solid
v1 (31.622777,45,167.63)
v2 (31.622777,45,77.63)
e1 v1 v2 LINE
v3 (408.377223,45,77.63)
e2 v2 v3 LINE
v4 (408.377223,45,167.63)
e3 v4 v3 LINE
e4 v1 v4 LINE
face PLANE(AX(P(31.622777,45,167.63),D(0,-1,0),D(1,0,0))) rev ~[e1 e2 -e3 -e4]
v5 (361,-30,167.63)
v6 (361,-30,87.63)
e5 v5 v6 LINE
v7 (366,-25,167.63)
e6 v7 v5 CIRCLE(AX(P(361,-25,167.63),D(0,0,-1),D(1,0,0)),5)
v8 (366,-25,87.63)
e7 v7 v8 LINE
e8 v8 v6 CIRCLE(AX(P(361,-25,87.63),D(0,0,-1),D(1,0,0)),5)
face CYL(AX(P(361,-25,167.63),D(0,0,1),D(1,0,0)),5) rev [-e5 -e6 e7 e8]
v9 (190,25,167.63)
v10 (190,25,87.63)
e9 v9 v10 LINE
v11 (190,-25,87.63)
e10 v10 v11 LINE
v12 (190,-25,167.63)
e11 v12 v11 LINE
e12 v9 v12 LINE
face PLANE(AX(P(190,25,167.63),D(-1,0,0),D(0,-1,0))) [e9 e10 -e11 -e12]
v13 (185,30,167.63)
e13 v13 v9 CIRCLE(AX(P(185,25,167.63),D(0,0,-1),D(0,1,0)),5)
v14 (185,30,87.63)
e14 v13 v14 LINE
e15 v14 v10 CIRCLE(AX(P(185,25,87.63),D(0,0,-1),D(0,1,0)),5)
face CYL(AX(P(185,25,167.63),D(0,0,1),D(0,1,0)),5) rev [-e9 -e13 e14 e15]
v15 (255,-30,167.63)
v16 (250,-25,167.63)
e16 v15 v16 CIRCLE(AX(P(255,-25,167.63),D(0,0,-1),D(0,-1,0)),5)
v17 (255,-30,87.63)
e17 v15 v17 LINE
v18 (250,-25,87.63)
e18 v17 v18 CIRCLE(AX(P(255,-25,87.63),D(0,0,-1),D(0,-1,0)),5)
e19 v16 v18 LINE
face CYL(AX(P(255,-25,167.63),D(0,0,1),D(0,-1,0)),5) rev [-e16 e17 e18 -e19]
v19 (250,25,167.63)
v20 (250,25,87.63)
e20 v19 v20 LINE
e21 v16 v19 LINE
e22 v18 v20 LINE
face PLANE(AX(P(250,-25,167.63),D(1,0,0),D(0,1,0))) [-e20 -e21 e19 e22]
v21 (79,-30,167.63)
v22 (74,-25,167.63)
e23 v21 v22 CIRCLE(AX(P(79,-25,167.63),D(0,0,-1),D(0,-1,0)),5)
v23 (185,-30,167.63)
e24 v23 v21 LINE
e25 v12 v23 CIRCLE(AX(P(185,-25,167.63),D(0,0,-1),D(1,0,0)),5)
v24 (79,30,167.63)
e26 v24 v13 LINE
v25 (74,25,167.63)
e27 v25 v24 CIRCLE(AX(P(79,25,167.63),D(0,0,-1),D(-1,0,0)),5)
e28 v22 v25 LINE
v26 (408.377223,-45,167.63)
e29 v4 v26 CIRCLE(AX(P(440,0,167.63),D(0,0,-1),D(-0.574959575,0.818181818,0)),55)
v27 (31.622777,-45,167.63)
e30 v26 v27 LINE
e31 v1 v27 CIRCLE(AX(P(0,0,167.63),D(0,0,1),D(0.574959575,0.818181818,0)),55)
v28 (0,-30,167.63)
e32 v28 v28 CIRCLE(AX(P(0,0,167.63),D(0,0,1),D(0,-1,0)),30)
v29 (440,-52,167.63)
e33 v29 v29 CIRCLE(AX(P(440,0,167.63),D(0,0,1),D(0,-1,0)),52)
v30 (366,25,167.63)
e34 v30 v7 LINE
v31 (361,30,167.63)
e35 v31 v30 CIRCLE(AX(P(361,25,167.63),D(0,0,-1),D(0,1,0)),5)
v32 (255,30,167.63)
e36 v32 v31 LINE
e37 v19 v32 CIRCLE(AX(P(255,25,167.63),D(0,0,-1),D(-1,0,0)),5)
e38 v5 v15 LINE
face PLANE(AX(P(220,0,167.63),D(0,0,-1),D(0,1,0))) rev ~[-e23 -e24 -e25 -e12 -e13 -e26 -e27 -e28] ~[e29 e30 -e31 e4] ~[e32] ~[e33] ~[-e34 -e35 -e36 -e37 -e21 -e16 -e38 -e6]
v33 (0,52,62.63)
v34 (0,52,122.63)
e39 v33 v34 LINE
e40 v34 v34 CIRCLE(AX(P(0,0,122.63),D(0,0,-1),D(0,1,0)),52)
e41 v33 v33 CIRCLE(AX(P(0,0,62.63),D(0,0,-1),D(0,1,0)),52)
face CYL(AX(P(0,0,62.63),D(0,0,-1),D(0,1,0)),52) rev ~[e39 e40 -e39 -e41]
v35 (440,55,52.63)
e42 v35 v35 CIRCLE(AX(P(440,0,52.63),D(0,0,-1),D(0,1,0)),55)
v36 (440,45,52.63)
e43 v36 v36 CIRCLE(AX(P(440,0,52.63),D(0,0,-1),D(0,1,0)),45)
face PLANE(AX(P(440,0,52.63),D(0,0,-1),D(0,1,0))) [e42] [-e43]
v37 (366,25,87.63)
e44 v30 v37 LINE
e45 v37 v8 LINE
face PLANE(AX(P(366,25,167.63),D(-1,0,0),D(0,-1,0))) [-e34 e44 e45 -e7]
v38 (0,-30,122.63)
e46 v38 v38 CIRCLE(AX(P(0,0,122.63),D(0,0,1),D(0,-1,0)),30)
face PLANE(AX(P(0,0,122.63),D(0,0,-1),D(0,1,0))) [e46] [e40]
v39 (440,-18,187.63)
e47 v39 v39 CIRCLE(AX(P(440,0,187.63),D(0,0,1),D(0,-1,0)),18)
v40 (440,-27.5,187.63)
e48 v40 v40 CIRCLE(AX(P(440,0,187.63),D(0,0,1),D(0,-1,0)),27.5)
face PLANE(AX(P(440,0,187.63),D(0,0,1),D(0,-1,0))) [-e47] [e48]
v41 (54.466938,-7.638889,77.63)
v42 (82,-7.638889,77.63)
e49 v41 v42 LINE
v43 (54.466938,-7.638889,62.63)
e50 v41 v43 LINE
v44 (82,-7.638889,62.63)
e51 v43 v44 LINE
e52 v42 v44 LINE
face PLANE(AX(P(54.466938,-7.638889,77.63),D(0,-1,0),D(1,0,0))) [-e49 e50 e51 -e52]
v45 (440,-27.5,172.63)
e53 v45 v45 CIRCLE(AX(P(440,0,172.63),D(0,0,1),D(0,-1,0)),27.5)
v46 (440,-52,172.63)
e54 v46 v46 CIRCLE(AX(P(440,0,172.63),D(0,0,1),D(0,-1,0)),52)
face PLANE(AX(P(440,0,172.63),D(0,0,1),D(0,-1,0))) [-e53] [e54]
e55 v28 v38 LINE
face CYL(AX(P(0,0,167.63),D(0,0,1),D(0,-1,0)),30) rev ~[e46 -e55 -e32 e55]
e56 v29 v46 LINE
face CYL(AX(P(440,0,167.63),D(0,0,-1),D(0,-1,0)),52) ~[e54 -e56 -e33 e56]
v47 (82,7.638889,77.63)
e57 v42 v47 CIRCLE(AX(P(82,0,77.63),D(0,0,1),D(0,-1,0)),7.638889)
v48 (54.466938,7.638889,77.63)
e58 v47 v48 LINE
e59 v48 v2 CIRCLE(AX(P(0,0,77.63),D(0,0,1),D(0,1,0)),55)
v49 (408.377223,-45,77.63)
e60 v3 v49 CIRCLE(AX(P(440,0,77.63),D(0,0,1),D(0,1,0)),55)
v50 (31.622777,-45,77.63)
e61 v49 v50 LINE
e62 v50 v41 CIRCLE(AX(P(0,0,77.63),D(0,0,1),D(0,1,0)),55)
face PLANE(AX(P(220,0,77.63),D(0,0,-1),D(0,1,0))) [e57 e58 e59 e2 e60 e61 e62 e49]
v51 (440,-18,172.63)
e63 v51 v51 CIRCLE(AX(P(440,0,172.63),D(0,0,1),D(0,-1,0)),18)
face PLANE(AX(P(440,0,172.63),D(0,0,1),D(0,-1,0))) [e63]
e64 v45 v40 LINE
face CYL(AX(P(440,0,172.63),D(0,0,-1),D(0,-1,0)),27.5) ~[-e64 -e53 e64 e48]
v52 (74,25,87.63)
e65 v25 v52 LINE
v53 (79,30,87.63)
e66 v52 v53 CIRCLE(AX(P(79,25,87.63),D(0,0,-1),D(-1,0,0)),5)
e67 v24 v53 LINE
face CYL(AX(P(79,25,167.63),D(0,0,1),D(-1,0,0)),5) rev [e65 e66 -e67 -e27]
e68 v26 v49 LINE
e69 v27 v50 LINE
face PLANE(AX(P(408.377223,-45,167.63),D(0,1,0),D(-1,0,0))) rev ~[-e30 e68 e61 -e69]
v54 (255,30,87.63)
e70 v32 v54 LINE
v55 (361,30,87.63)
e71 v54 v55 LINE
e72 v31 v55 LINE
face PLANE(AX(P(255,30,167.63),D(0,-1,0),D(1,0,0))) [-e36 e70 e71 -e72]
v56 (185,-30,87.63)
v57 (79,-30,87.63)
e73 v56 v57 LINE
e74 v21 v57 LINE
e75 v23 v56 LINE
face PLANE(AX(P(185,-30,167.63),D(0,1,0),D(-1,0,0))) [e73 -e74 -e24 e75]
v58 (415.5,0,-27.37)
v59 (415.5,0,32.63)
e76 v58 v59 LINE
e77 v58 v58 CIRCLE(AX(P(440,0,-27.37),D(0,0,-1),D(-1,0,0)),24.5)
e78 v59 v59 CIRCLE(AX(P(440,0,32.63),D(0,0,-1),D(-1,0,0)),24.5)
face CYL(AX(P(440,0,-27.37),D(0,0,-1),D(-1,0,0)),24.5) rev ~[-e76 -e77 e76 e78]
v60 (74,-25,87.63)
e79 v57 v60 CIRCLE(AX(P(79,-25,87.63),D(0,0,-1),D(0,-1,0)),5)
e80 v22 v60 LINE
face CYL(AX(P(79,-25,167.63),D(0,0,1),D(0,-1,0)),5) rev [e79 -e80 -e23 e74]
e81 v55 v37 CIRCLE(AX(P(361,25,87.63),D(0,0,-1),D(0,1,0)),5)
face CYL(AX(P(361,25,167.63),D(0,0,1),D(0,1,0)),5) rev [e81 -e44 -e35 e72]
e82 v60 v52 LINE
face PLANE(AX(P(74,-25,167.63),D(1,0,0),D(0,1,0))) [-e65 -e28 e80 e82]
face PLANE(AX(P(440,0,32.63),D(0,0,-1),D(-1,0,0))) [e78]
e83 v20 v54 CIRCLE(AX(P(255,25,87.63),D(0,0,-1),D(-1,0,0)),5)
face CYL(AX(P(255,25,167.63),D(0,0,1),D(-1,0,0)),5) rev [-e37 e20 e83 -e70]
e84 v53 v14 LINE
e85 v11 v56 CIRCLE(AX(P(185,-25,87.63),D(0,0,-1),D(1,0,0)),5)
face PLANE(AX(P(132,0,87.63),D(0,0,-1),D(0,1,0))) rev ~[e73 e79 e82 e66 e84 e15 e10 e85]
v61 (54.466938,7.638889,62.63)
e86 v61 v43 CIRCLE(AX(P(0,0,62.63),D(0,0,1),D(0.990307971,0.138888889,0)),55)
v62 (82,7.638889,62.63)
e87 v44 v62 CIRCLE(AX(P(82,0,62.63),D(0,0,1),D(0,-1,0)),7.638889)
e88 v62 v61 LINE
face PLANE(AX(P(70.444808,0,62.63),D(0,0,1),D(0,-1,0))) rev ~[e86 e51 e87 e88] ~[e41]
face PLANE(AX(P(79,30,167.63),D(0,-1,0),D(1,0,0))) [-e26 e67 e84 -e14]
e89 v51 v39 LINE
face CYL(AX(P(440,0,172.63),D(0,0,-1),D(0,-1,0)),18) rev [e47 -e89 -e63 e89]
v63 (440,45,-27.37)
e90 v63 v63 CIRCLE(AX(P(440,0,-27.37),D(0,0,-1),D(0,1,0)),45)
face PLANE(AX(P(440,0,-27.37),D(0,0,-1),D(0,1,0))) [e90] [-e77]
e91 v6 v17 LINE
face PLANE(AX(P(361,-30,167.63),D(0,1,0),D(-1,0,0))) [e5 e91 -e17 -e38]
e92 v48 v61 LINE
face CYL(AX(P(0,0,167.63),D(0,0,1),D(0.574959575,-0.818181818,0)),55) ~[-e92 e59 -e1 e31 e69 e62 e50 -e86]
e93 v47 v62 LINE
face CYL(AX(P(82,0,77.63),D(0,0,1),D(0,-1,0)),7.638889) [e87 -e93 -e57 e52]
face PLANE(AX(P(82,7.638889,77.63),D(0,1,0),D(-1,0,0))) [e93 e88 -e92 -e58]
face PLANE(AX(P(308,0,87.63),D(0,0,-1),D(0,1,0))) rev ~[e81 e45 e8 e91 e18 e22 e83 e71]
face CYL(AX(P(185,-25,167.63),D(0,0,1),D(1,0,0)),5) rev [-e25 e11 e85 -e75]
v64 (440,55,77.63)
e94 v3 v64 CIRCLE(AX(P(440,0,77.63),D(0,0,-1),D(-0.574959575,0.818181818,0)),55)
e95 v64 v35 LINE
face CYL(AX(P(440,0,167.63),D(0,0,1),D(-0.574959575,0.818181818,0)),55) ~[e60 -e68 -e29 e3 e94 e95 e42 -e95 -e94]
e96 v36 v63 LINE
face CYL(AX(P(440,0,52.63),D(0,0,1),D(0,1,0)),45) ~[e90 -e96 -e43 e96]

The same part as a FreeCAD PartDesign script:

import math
import FreeCAD as App
import Part
import Sketcher
from FreeCAD import Vector
Q = App.Units.Quantity

doc = App.newDocument("Part")
body = doc.addObject("PartDesign::Body", "Body")

sketch1 = body.newObject("Sketcher::SketchObject", "Sketch")
sketch1.AttachmentSupport = (doc.getObject("XY_Plane"), [""])
sketch1.MapMode = "FlatFace"
sketch1.addGeometry(Part.LineSegment(Vector(-45, 408, 0), Vector(-45, 32, 0)), False)
sketch1.addGeometry(Part.ArcOfCircle(Part.Circle(Vector(0, 0, 0), Vector(0, 0, 1), 55), math.radians(145), math.radians(395)), False)
sketch1.addGeometry(Part.LineSegment(Vector(45, 32, 0), Vector(45, 408, 0)), False)
sketch1.addGeometry(Part.ArcOfCircle(Part.Circle(Vector(0, 440, 0), Vector(0, 0, 1), 55), math.radians(-35), math.radians(215)), False)
sketch1.addConstraint(Sketcher.Constraint("Coincident", 0, 2, 1, 1))
sketch1.addConstraint(Sketcher.Constraint("Coincident", 1, 2, 2, 1))
sketch1.addConstraint(Sketcher.Constraint("Coincident", 2, 2, 3, 1))
sketch1.addConstraint(Sketcher.Constraint("Coincident", 3, 2, 0, 1))
sketch1.addConstraint(Sketcher.Constraint("Vertical", 0))
sketch1.addConstraint(Sketcher.Constraint("Vertical", 2))
sketch1.addConstraint(Sketcher.Constraint("Coincident", 1, 3, -1, 1))
sketch1.addConstraint(Sketcher.Constraint("Equal", 1, 3))
sketch1.addConstraint(Sketcher.Constraint("Symmetric", 2, 2, 3, 2, -2))
sketch1.addConstraint(Sketcher.Constraint("Radius", 1, Q("55 mm")))
sketch1.addConstraint(Sketcher.Constraint("DistanceY", -1, 1, 3, 3, Q("440 mm")))
sketch1.addConstraint(Sketcher.Constraint("DistanceX", 0, 2, -1, 1, Q("45 mm")))
pad1 = body.newObject("PartDesign::Pad", "Pad")
pad1.Profile = sketch1
pad1.Length = 90

sketch2 = body.newObject("Sketcher::SketchObject", "Sketch001")
sketch2.AttachmentSupport = (doc.getObject("XY_Plane"), [""])
sketch2.MapMode = "FlatFace"
sketch2.addGeometry(Part.Circle(Vector(0, 440, 0), Vector(0, 0, 1), 55), False)
sketch2.addConstraint(Sketcher.Constraint("PointOnObject", 0, 3, -2))
sketch2.addConstraint(Sketcher.Constraint("Diameter", 0, Q("110 mm")))
sketch2.addConstraint(Sketcher.Constraint("DistanceY", -1, 1, 0, 3, Q("440 mm")))
pad2 = body.newObject("PartDesign::Pad", "Pad001")
pad2.Profile = sketch2
pad2.Length = 115

sketch3 = body.newObject("Sketcher::SketchObject", "Sketch002")
sketch3.AttachmentSupport = (doc.getObject("XY_Plane"), [""])
sketch3.MapMode = "FlatFace"
sketch3.addGeometry(Part.Circle(Vector(0, 0, 0), Vector(0, 0, 1), 55), False)
sketch3.addConstraint(Sketcher.Constraint("Coincident", 0, 3, -1, 1))
sketch3.addConstraint(Sketcher.Constraint("Diameter", 0, Q("110 mm")))
pad3 = body.newObject("PartDesign::Pad", "Pad002")
pad3.Profile = sketch3
pad3.Length = 105

sketch4 = body.newObject("Sketcher::SketchObject", "Sketch003")
sketch4.AttachmentSupport = (doc.getObject("XY_Plane"), [""])
sketch4.MapMode = "FlatFace"
sketch4.AttachmentOffset = App.Placement(Vector(0, 0, 90), App.Rotation())
sketch4.addGeometry(Part.LineSegment(Vector(8, 54, 0), Vector(8, 82, 0)), False)
sketch4.addGeometry(Part.ArcOfCircle(Part.Circle(Vector(0, 82, 0), Vector(0, 0, 1), 8), math.radians(0), math.radians(180)), False)
sketch4.addGeometry(Part.LineSegment(Vector(-8, 82, 0), Vector(-8, 54, 0)), False)
sketch4.addGeometry(Part.LineSegment(Vector(-8, 54, 0), Vector(8, 54, 0)), False)
sketch4.addConstraint(Sketcher.Constraint("Tangent", 0, 2, 1, 1))
sketch4.addConstraint(Sketcher.Constraint("Tangent", 1, 2, 2, 1))
sketch4.addConstraint(Sketcher.Constraint("Coincident", 2, 2, 3, 1))
sketch4.addConstraint(Sketcher.Constraint("Coincident", 3, 2, 0, 1))
sketch4.addConstraint(Sketcher.Constraint("Vertical", 0))
sketch4.addConstraint(Sketcher.Constraint("Vertical", 2))
sketch4.addConstraint(Sketcher.Constraint("Horizontal", 3))
sketch4.addConstraint(Sketcher.Constraint("PointOnObject", 1, 3, -2))
sketch4.addConstraint(Sketcher.Constraint("DistanceY", -1, 1, 1, 3, Q("82 mm")))
sketch4.addConstraint(Sketcher.Constraint("Radius", 1, Q("7.638889 mm")))
sketch4.addConstraint(Sketcher.Constraint("DistanceY", 0, 1, 0, 2, Q("27.533062 mm")))
pad4 = body.newObject("PartDesign::Pad", "Pad003")
pad4.Profile = sketch4
pad4.Length = 15

sketch5 = body.newObject("Sketcher::SketchObject", "Sketch004")
sketch5.AttachmentSupport = (doc.getObject("XY_Plane"), [""])
sketch5.MapMode = "FlatFace"
sketch5.AttachmentOffset = App.Placement(Vector(0, 0, 115), App.Rotation())
sketch5.addGeometry(Part.Circle(Vector(0, 440, 0), Vector(0, 0, 1), 45), False)
sketch5.addConstraint(Sketcher.Constraint("PointOnObject", 0, 3, -2))
sketch5.addConstraint(Sketcher.Constraint("Diameter", 0, Q("90 mm")))
sketch5.addConstraint(Sketcher.Constraint("DistanceY", -1, 1, 0, 3, Q("440 mm")))
pad5 = body.newObject("PartDesign::Pad", "Pad004")
pad5.Profile = sketch5
pad5.Length = 80

sketch6 = body.newObject("Sketcher::SketchObject", "Sketch005")
sketch6.AttachmentSupport = (doc.getObject("XY_Plane"), [""])
sketch6.MapMode = "FlatFace"
sketch6.addGeometry(Part.Circle(Vector(0, 440, 0), Vector(0, 0, 1), 52), False)
sketch6.addConstraint(Sketcher.Constraint("PointOnObject", 0, 3, -2))
sketch6.addConstraint(Sketcher.Constraint("Diameter", 0, Q("104 mm")))
sketch6.addConstraint(Sketcher.Constraint("DistanceY", -1, 1, 0, 3, Q("440 mm")))
pad6 = body.newObject("PartDesign::Pad", "Pad005")
pad6.Profile = sketch6
pad6.Length = 5
pad6.Reversed = True

sketch7 = body.newObject("Sketcher::SketchObject", "Sketch006")
sketch7.AttachmentSupport = (doc.getObject("XY_Plane"), [""])
sketch7.MapMode = "FlatFace"
sketch7.AttachmentOffset = App.Placement(Vector(0, 0, -5), App.Rotation())
sketch7.addGeometry(Part.Circle(Vector(0, 440, 0), Vector(0, 0, 1), 28), False)
sketch7.addGeometry(Part.Circle(Vector(0, 440, 0), Vector(0, 0, 1), 18), False)
sketch7.addConstraint(Sketcher.Constraint("Coincident", 1, 3, 0, 3))
sketch7.addConstraint(Sketcher.Constraint("PointOnObject", 0, 3, -2))
sketch7.addConstraint(Sketcher.Constraint("Diameter", 0, Q("55 mm")))
sketch7.addConstraint(Sketcher.Constraint("Diameter", 1, Q("36 mm")))
sketch7.addConstraint(Sketcher.Constraint("DistanceY", -1, 1, 0, 3, Q("440 mm")))
pad7 = body.newObject("PartDesign::Pad", "Pad006")
pad7.Profile = sketch7
pad7.Length = 15
pad7.Reversed = True
body2 = doc.addObject("PartDesign::Body", "Body001")
doc.recompute()

body.Placement = App.Placement(Vector(0, 0, 0), App.Rotation(Vector(0, 1, 0), 180))
boolean = body2.newObject("PartDesign::Boolean", "Boolean")
boolean.Type = "Fuse"
boolean.addObjects([body])

sketch8 = body2.newObject("Sketcher::SketchObject", "Sketch007")
sketch8.AttachmentSupport = (doc.getObject("XY_Plane001"), [""])
sketch8.MapMode = "FlatFace"
sketch8.AttachmentOffset = App.Placement(Vector(0, 0, -105), App.Rotation())
sketch8.addGeometry(Part.Circle(Vector(0, 0, 0), Vector(0, 0, 1), 52), False)
sketch8.addConstraint(Sketcher.Constraint("Coincident", 0, 3, -1, 1))
sketch8.addConstraint(Sketcher.Constraint("Diameter", 0, Q("104 mm")))
pocket1 = body2.newObject("PartDesign::Pocket", "Pocket")
pocket1.Profile = sketch8
pocket1.Length = 60
pocket1.Reversed = True

sketch9 = body2.newObject("Sketcher::SketchObject", "Sketch008")
sketch9.AttachmentSupport = (doc.getObject("XY_Plane001"), [""])
sketch9.MapMode = "FlatFace"
sketch9.addGeometry(Part.ArcOfCircle(Part.Circle(Vector(-25, 361, 0), Vector(0, 0, 1), 5), math.radians(90), math.radians(180)), False)
sketch9.addGeometry(Part.LineSegment(Vector(-30, 361, 0), Vector(-30, 255, 0)), False)
sketch9.addGeometry(Part.ArcOfCircle(Part.Circle(Vector(-25, 255, 0), Vector(0, 0, 1), 5), math.radians(180), math.radians(270)), False)
sketch9.addGeometry(Part.LineSegment(Vector(-25, 250, 0), Vector(25, 250, 0)), False)
sketch9.addGeometry(Part.ArcOfCircle(Part.Circle(Vector(25, 255, 0), Vector(0, 0, 1), 5), math.radians(-90), math.radians(0)), False)
sketch9.addGeometry(Part.LineSegment(Vector(30, 255, 0), Vector(30, 361, 0)), False)
sketch9.addGeometry(Part.ArcOfCircle(Part.Circle(Vector(25, 361, 0), Vector(0, 0, 1), 5), math.radians(0), math.radians(90)), False)
sketch9.addGeometry(Part.LineSegment(Vector(25, 366, 0), Vector(-25, 366, 0)), False)
sketch9.addGeometry(Part.ArcOfCircle(Part.Circle(Vector(-25, 185, 0), Vector(0, 0, 1), 5), math.radians(90), math.radians(180)), False)
sketch9.addGeometry(Part.LineSegment(Vector(-30, 185, 0), Vector(-30, 79, 0)), False)
sketch9.addGeometry(Part.ArcOfCircle(Part.Circle(Vector(-25, 79, 0), Vector(0, 0, 1), 5), math.radians(180), math.radians(270)), False)
sketch9.addGeometry(Part.LineSegment(Vector(-25, 74, 0), Vector(25, 74, 0)), False)
sketch9.addGeometry(Part.ArcOfCircle(Part.Circle(Vector(25, 79, 0), Vector(0, 0, 1), 5), math.radians(-90), math.radians(0)), False)
sketch9.addGeometry(Part.LineSegment(Vector(30, 79, 0), Vector(30, 185, 0)), False)
sketch9.addGeometry(Part.ArcOfCircle(Part.Circle(Vector(25, 185, 0), Vector(0, 0, 1), 5), math.radians(0), math.radians(90)), False)
sketch9.addGeometry(Part.LineSegment(Vector(25, 190, 0), Vector(-25, 190, 0)), False)
sketch9.addConstraint(Sketcher.Constraint("Tangent", 0, 2, 1, 1))
sketch9.addConstraint(Sketcher.Constraint("Tangent", 1, 2, 2, 1))
sketch9.addConstraint(Sketcher.Constraint("Tangent", 2, 2, 3, 1))
sketch9.addConstraint(Sketcher.Constraint("Tangent", 3, 2, 4, 1))
sketch9.addConstraint(Sketcher.Constraint("Tangent", 4, 2, 5, 1))
sketch9.addConstraint(Sketcher.Constraint("Tangent", 5, 2, 6, 1))
sketch9.addConstraint(Sketcher.Constraint("Tangent", 6, 2, 7, 1))
sketch9.addConstraint(Sketcher.Constraint("Tangent", 7, 2, 0, 1))
sketch9.addConstraint(Sketcher.Constraint("Tangent", 8, 2, 9, 1))
sketch9.addConstraint(Sketcher.Constraint("Tangent", 9, 2, 10, 1))
sketch9.addConstraint(Sketcher.Constraint("Tangent", 10, 2, 11, 1))
sketch9.addConstraint(Sketcher.Constraint("Tangent", 11, 2, 12, 1))
sketch9.addConstraint(Sketcher.Constraint("Tangent", 12, 2, 13, 1))
sketch9.addConstraint(Sketcher.Constraint("Tangent", 13, 2, 14, 1))
sketch9.addConstraint(Sketcher.Constraint("Tangent", 14, 2, 15, 1))
sketch9.addConstraint(Sketcher.Constraint("Tangent", 15, 2, 8, 1))
sketch9.addConstraint(Sketcher.Constraint("Vertical", 1))
sketch9.addConstraint(Sketcher.Constraint("Horizontal", 3))
sketch9.addConstraint(Sketcher.Constraint("Vertical", 5))
sketch9.addConstraint(Sketcher.Constraint("Horizontal", 7))
sketch9.addConstraint(Sketcher.Constraint("Vertical", 9))
sketch9.addConstraint(Sketcher.Constraint("Horizontal", 11))
sketch9.addConstraint(Sketcher.Constraint("Vertical", 13))
sketch9.addConstraint(Sketcher.Constraint("Horizontal", 15))
sketch9.addConstraint(Sketcher.Constraint("Equal", 0, 2))
sketch9.addConstraint(Sketcher.Constraint("Equal", 2, 4))
sketch9.addConstraint(Sketcher.Constraint("Equal", 4, 6))
sketch9.addConstraint(Sketcher.Constraint("Equal", 6, 8))
sketch9.addConstraint(Sketcher.Constraint("Equal", 8, 10))
sketch9.addConstraint(Sketcher.Constraint("Equal", 10, 12))
sketch9.addConstraint(Sketcher.Constraint("Equal", 12, 14))
sketch9.addConstraint(Sketcher.Constraint("Vertical", 2, 3, 8, 3))
sketch9.addConstraint(Sketcher.Constraint("Vertical", 6, 3, 12, 3))
sketch9.addConstraint(Sketcher.Constraint("Equal", 5, 9))
sketch9.addConstraint(Sketcher.Constraint("Radius", 0, Q("5 mm")))
sketch9.addConstraint(Sketcher.Constraint("DistanceX", 3, 1, 3, 2, Q("50 mm")))
sketch9.addConstraint(Sketcher.Constraint("DistanceY", 1, 2, 1, 1, Q("106 mm")))
sketch9.addConstraint(Sketcher.Constraint("DistanceX", 0, 3, -1, 1, Q("25 mm")))
sketch9.addConstraint(Sketcher.Constraint("DistanceY", -1, 1, 0, 3, Q("361 mm")))
sketch9.addConstraint(Sketcher.Constraint("DistanceY", -1, 1, 8, 3, Q("185 mm")))
pocket2 = body2.newObject("PartDesign::Pocket", "Pocket001")
pocket2.Profile = sketch9
pocket2.Length = 80

sketch10 = body2.newObject("Sketcher::SketchObject", "Sketch009")
sketch10.AttachmentSupport = (doc.getObject("XY_Plane001"), [""])
sketch10.MapMode = "FlatFace"
sketch10.addGeometry(Part.Circle(Vector(0, 0, 0), Vector(0, 0, 1), 30), False)
sketch10.addConstraint(Sketcher.Constraint("Coincident", 0, 3, -1, 1))
sketch10.addConstraint(Sketcher.Constraint("Diameter", 0, Q("60 mm")))
pocket3 = body2.newObject("PartDesign::Pocket", "Pocket002")
pocket3.Profile = sketch10
pocket3.Type = "ThroughAll"
body3 = doc.addObject("PartDesign::Body", "Body002")
doc.recompute()

body2.Placement = App.Placement(Vector(0, 0, -175), App.Rotation(Vector(0, 1, 0), 180))
boolean2 = body3.newObject("PartDesign::Boolean", "Boolean001")
boolean2.Type = "Fuse"
boolean2.addObjects([body2])
body4 = doc.addObject("PartDesign::Body", "Body003")
doc.recompute()

body3.Placement = App.Placement(Vector(-225, 225, 0), App.Rotation(Vector(0, 0, -1), 90))
boolean3 = body4.newObject("PartDesign::Boolean", "Boolean002")
boolean3.Type = "Fuse"
boolean3.addObjects([body3])
body5 = doc.addObject("PartDesign::Body", "Body004")
doc.recompute()

body4.Placement = App.Placement(Vector(450, 0, -35), App.Rotation(Vector(0, 1, 0), 180))
boolean4 = body5.newObject("PartDesign::Boolean", "Boolean003")
boolean4.Type = "Fuse"
boolean4.addObjects([body4])
body6 = doc.addObject("PartDesign::Body", "Body005")
doc.recompute()

body5.Placement = App.Placement(Vector(-675, -225, -35), App.Rotation(Vector(0, 0, 1), 0))
boolean5 = body6.newObject("PartDesign::Boolean", "Boolean004")
boolean5.Type = "Fuse"
boolean5.addObjects([body5])
body7 = doc.addObject("PartDesign::Body", "Body006")
doc.recompute()

body6.Placement = App.Placement(Vector(-225, -225, 0), App.Rotation(Vector(0, 0, -1), 90))
boolean6 = body7.newObject("PartDesign::Boolean", "Boolean005")
boolean6.Type = "Fuse"
boolean6.addObjects([body6])
body8 = doc.addObject("PartDesign::Body", "Body007")
doc.recompute()

body7.Placement = App.Placement(Vector(-225, -225, 0), App.Rotation(Vector(0, 0, -1), 90))
boolean7 = body8.newObject("PartDesign::Boolean", "Boolean006")
boolean7.Type = "Fuse"
boolean7.addObjects([body7])
body9 = doc.addObject("PartDesign::Body", "Body008")
doc.recompute()

body8.Placement = App.Placement(Vector(450, 0, 0), App.Rotation(Vector(0, 0, 1), 0))
boolean8 = body9.newObject("PartDesign::Boolean", "Boolean007")
boolean8.Type = "Fuse"
boolean8.addObjects([body8])
body10 = doc.addObject("PartDesign::Body", "Body009")
doc.recompute()

body9.Placement = App.Placement(Vector(0, 0, 62.63), App.Rotation(Vector(0, 0, 1), 0))
boolean9 = body10.newObject("PartDesign::Boolean", "Boolean008")
boolean9.Type = "Fuse"
boolean9.addObjects([body9])

sketch11 = body10.newObject("Sketcher::SketchObject", "Sketch010")
sketch11.AttachmentSupport = (doc.getObject("XY_Plane009"), [""])
sketch11.MapMode = "FlatFace"
sketch11.AttachmentOffset = App.Placement(Vector(0, 0, -27.37), App.Rotation())
sketch11.addGeometry(Part.Circle(Vector(440, 0, 0), Vector(0, 0, 1), 24), False)
sketch11.addConstraint(Sketcher.Constraint("PointOnObject", 0, 3, -1))
sketch11.addConstraint(Sketcher.Constraint("Diameter", 0, Q("49 mm")))
sketch11.addConstraint(Sketcher.Constraint("DistanceX", -1, 1, 0, 3, Q("440 mm")))
pocket4 = body10.newObject("PartDesign::Pocket", "Pocket003")
pocket4.Profile = sketch11
pocket4.Length = 60
pocket4.Reversed = True

doc.recompute()
